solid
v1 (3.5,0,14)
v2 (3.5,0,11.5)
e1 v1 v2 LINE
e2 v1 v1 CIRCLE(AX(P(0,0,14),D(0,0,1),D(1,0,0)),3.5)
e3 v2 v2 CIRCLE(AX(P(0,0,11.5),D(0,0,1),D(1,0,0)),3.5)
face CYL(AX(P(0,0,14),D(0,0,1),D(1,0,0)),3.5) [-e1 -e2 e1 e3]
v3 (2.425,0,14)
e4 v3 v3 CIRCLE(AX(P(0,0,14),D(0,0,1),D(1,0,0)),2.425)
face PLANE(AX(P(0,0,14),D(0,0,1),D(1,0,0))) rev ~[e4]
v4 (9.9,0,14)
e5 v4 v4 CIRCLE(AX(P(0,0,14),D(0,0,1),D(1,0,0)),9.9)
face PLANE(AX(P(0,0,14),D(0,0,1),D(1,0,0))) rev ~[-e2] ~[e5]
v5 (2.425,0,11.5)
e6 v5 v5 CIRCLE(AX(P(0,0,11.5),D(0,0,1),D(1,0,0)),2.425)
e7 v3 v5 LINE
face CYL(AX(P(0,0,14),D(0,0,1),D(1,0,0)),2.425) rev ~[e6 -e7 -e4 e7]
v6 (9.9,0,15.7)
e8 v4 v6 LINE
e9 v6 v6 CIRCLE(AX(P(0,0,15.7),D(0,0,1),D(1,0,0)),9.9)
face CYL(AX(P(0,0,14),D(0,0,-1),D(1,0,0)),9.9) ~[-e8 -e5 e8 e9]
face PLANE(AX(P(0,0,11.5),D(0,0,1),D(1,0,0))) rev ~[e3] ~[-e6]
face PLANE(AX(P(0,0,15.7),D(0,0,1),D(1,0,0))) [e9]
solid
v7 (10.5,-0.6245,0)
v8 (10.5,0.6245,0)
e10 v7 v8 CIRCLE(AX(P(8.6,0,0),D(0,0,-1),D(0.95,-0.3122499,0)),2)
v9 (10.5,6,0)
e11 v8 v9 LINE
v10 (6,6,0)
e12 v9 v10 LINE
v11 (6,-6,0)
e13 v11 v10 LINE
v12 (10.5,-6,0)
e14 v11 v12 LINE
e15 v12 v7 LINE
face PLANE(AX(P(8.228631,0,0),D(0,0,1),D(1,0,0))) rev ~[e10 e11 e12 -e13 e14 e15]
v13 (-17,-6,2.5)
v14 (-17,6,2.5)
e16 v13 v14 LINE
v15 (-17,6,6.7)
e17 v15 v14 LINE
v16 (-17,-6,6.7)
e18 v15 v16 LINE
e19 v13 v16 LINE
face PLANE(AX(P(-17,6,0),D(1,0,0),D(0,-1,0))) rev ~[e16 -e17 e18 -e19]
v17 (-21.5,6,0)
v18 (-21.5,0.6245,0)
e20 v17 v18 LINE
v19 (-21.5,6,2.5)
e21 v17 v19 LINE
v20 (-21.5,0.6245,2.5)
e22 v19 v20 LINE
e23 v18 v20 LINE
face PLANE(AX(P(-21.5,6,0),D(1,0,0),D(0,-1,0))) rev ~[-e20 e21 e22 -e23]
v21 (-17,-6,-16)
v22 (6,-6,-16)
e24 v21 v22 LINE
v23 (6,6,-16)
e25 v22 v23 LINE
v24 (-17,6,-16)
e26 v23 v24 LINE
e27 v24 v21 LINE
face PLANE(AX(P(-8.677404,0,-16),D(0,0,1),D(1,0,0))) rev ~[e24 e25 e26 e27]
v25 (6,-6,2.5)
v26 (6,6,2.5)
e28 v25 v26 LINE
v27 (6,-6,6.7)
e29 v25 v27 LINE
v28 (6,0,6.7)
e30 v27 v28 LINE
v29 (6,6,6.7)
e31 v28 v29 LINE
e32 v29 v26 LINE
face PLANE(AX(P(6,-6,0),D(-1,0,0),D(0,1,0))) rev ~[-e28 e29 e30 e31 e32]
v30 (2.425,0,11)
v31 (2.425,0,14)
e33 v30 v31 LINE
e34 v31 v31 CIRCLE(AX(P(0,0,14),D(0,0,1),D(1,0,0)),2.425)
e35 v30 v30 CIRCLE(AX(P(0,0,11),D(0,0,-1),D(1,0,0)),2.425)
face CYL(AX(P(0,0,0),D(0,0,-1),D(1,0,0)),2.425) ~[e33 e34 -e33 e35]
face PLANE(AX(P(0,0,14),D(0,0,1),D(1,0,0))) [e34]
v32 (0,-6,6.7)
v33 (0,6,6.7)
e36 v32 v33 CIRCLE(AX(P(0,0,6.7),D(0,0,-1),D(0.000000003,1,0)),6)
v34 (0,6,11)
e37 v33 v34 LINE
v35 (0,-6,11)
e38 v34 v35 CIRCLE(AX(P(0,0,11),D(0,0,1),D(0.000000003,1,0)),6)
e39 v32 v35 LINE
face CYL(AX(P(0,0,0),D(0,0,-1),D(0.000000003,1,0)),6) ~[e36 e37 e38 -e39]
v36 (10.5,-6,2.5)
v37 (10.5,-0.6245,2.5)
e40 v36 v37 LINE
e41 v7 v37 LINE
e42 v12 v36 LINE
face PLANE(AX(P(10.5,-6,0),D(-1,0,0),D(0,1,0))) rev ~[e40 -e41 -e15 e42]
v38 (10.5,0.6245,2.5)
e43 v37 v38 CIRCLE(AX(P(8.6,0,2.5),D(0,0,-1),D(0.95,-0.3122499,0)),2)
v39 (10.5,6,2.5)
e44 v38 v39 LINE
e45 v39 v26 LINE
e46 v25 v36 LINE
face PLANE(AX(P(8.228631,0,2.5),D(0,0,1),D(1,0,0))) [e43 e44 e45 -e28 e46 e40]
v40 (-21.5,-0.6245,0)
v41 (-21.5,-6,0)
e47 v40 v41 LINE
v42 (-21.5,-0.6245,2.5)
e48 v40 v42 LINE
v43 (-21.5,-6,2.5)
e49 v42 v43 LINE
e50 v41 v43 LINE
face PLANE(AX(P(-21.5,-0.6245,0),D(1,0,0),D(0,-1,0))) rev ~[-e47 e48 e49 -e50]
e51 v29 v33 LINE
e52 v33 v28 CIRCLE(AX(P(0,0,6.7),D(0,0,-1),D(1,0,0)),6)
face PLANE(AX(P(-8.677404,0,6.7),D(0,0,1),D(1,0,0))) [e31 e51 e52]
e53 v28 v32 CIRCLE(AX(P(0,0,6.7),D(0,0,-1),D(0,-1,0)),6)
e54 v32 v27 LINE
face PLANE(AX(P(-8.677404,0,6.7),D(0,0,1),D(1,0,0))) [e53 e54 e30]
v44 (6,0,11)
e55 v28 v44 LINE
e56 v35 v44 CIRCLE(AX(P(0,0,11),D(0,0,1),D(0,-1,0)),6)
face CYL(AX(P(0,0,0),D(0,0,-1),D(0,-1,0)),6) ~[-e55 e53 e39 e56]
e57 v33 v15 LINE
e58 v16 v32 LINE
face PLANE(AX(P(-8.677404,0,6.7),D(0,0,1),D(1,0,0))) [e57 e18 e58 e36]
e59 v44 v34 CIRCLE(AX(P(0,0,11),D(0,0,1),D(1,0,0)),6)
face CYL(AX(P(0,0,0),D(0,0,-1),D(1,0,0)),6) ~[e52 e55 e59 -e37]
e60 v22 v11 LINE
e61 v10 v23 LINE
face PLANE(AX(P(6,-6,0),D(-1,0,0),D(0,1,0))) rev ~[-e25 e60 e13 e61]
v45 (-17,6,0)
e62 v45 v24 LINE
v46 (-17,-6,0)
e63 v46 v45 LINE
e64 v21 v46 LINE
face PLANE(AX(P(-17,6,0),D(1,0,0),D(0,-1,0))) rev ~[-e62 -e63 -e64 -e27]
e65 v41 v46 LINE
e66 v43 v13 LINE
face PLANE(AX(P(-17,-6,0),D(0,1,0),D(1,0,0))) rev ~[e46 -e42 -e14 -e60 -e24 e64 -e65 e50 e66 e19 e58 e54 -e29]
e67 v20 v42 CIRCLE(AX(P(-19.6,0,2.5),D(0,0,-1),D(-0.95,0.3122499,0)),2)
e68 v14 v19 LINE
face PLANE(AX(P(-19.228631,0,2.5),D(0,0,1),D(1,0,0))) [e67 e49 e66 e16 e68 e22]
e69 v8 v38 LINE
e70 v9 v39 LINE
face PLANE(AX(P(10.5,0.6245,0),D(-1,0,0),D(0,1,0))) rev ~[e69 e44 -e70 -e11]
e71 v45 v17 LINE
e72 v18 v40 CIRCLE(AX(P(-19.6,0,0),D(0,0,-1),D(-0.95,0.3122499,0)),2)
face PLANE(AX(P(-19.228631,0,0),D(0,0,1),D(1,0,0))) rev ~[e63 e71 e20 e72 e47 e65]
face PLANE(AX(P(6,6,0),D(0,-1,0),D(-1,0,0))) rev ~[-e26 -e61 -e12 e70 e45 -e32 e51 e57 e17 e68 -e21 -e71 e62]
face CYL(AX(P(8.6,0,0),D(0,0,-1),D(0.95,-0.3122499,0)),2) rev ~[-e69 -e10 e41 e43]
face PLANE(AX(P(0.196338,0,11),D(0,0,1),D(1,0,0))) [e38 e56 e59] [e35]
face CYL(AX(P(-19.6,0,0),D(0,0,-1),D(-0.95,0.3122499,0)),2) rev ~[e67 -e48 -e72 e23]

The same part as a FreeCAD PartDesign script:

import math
import FreeCAD as App
import Part
import Sketcher

V = App.Vector

doc = App.newDocument("Part")
body = doc.addObject("PartDesign::Body", "Body")

sketch1 = doc.addObject("Sketcher::SketchObject", "Sketch")
body.addObject(sketch1)
sketch1.AttachmentSupport = (doc.XY_Plane, [""])
sketch1.MapMode = "FlatFace"
sketch1.addGeometry(Part.LineSegment(V(-17, 6, 0), V(-17, -6, 0)), False)
sketch1.addGeometry(Part.LineSegment(V(-17, -6, 0), V(6, -6, 0)), False)
sketch1.addGeometry(Part.LineSegment(V(6, -6, 0), V(6, 6, 0)), False)
sketch1.addGeometry(Part.LineSegment(V(6, 6, 0), V(-17, 6, 0)), False)
sketch1.addConstraint(Sketcher.Constraint("Coincident", 0, 2, 1, 1))
sketch1.addConstraint(Sketcher.Constraint("Coincident", 1, 2, 2, 1))
sketch1.addConstraint(Sketcher.Constraint("Coincident", 2, 2, 3, 1))
sketch1.addConstraint(Sketcher.Constraint("Coincident", 3, 2, 0, 1))
sketch1.addConstraint(Sketcher.Constraint("Vertical", 0))
sketch1.addConstraint(Sketcher.Constraint("Horizontal", 1))
sketch1.addConstraint(Sketcher.Constraint("Vertical", 2))
sketch1.addConstraint(Sketcher.Constraint("Horizontal", 3))
sketch1.addConstraint(Sketcher.Constraint("DistanceX", 1, 1, 1, 2, 23.0))
sketch1.addConstraint(Sketcher.Constraint("DistanceY", 0, 2, 0, 1, 12.0))
sketch1.addConstraint(Sketcher.Constraint("DistanceX", 0, 2, -1, 1, 17.0))
sketch1.addConstraint(Sketcher.Constraint("DistanceY", 0, 2, -1, 1, 6.0))
pad1 = doc.addObject("PartDesign::Pad", "Pad")
body.addObject(pad1)
pad1.Profile = sketch1
pad1.Type = "TwoLengths"
pad1.Length = 16
pad1.Length2 = 6.7
pad1.Reversed = True

sketch2 = doc.addObject("Sketcher::SketchObject", "Sketch001")
body.addObject(sketch2)
sketch2.AttachmentSupport = (doc.XY_Plane, [""])
sketch2.MapMode = "FlatFace"
sketch2.addGeometry(Part.LineSegment(V(-17, -6, 0), V(-17, 6, 0)), False)
sketch2.addGeometry(Part.LineSegment(V(-17, 6, 0), V(-21.5, 6, 0)), False)
sketch2.addGeometry(Part.LineSegment(V(-21.5, 6, 0), V(-21.5, 0.6245, 0)), False)
sketch2.addGeometry(Part.ArcOfCircle(Part.Circle(V(-19.6, 0, 0), V(0, 0, 1), 2), math.radians(-161.805128), math.radians(161.805128)), False)
sketch2.addGeometry(Part.LineSegment(V(-21.5, -0.6245, 0), V(-21.5, -6, 0)), False)
sketch2.addGeometry(Part.LineSegment(V(-21.5, -6, 0), V(-17, -6, 0)), False)
sketch2.addGeometry(Part.LineSegment(V(10.5, 6, 0), V(6, 6, 0)), False)
sketch2.addGeometry(Part.LineSegment(V(6, 6, 0), V(6, -6, 0)), False)
sketch2.addGeometry(Part.LineSegment(V(6, -6, 0), V(10.5, -6, 0)), False)
sketch2.addGeometry(Part.LineSegment(V(10.5, -6, 0), V(10.5, -0.6245, 0)), False)
sketch2.addGeometry(Part.ArcOfCircle(Part.Circle(V(8.6, 0, 0), V(0, 0, 1), 2), math.radians(18.194872), math.radians(341.805128)), False)
sketch2.addGeometry(Part.LineSegment(V(10.5, 0.6245, 0), V(10.5, 6, 0)), False)
sketch2.addConstraint(Sketcher.Constraint("Coincident", 0, 2, 1, 1))
sketch2.addConstraint(Sketcher.Constraint("Coincident", 1, 2, 2, 1))
sketch2.addConstraint(Sketcher.Constraint("Coincident", 2, 2, 3, 2))
sketch2.addConstraint(Sketcher.Constraint("Coincident", 3, 1, 4, 1))
sketch2.addConstraint(Sketcher.Constraint("Coincident", 4, 2, 5, 1))
sketch2.addConstraint(Sketcher.Constraint("Coincident", 5, 2, 0, 1))
sketch2.addConstraint(Sketcher.Constraint("Coincident", 6, 2, 7, 1))
sketch2.addConstraint(Sketcher.Constraint("Coincident", 7, 2, 8, 1))
sketch2.addConstraint(Sketcher.Constraint("Coincident", 8, 2, 9, 1))
sketch2.addConstraint(Sketcher.Constraint("Coincident", 9, 2, 10, 2))
sketch2.addConstraint(Sketcher.Constraint("Coincident", 10, 1, 11, 1))
sketch2.addConstraint(Sketcher.Constraint("Coincident", 11, 2, 6, 1))
sketch2.addConstraint(Sketcher.Constraint("Vertical", 0))
sketch2.addConstraint(Sketcher.Constraint("Horizontal", 1))
sketch2.addConstraint(Sketcher.Constraint("Vertical", 2))
sketch2.addConstraint(Sketcher.Constraint("Vertical", 4))
sketch2.addConstraint(Sketcher.Constraint("Horizontal", 5))
sketch2.addConstraint(Sketcher.Constraint("Horizontal", 6))
sketch2.addConstraint(Sketcher.Constraint("Vertical", 7))
sketch2.addConstraint(Sketcher.Constraint("Horizontal", 8))
sketch2.addConstraint(Sketcher.Constraint("Vertical", 9))
sketch2.addConstraint(Sketcher.Constraint("Vertical", 11))
sketch2.addConstraint(Sketcher.Constraint("Equal", 3, 10))
sketch2.addConstraint(Sketcher.Constraint("Symmetric", 2, 2, 3, 1, -1))
sketch2.addConstraint(Sketcher.Constraint("Symmetric", 9, 2, 10, 1, -1))
sketch2.addConstraint(Sketcher.Constraint("Horizontal", 1, 2, 6, 2))
sketch2.addConstraint(Sketcher.Constraint("Horizontal", 5, 2, 7, 2))
sketch2.addConstraint(Sketcher.Constraint("Horizontal", 3, 1, 9, 2))
sketch2.addConstraint(Sketcher.Constraint("Equal", 5, 6))
sketch2.addConstraint(Sketcher.Constraint("Equal", 2, 4))
sketch2.addConstraint(Sketcher.Constraint("Radius", 3, 2.0))
sketch2.addConstraint(Sketcher.Constraint("DistanceY", 0, 1, 0, 2, 12.0))
sketch2.addConstraint(Sketcher.Constraint("DistanceX", 1, 2, 1, 1, 4.5))
sketch2.addConstraint(Sketcher.Constraint("DistanceX", 0, 2, -1, 1, 17.0))
sketch2.addConstraint(Sketcher.Constraint("DistanceX", -1, 1, 6, 2, 6.0))
sketch2.addConstraint(Sketcher.Constraint("DistanceX", 3, 3, -1, 1, 19.6))
pad2 = doc.addObject("PartDesign::Pad", "Pad001")
body.addObject(pad2)
pad2.Profile = sketch2
pad2.Length = 2.5

sketch3 = doc.addObject("Sketcher::SketchObject", "Sketch002")
body.addObject(sketch3)
sketch3.AttachmentSupport = (doc.XY_Plane, [""])
sketch3.MapMode = "FlatFace"
sketch3.addGeometry(Part.ArcOfCircle(Part.Circle(V(0, 0, 0), V(0, 0, 1), 6), math.radians(0), math.radians(90)), False)
sketch3.addGeometry(Part.ArcOfCircle(Part.Circle(V(0, 0, 0), V(0, 0, 1), 6), math.radians(90), math.radians(270)), False)
sketch3.addGeometry(Part.ArcOfCircle(Part.Circle(V(0, 0, 0), V(0, 0, 1), 6), math.radians(-90), math.radians(0)), False)
sketch3.addConstraint(Sketcher.Constraint("Tangent", 0, 2, 1, 1))
sketch3.addConstraint(Sketcher.Constraint("Tangent", 1, 2, 2, 1))
sketch3.addConstraint(Sketcher.Constraint("Tangent", 2, 2, 0, 1))
sketch3.addConstraint(Sketcher.Constraint("Coincident", 0, 3, -1, 1))
sketch3.addConstraint(Sketcher.Constraint("PointOnObject", 0, 2, -2))
sketch3.addConstraint(Sketcher.Constraint("PointOnObject", 1, 2, -2))
sketch3.addConstraint(Sketcher.Constraint("PointOnObject", 2, 2, -1))
sketch3.addConstraint(Sketcher.Constraint("Radius", 0, 6.0))
pad3 = doc.addObject("PartDesign::Pad", "Pad002")
body.addObject(pad3)
pad3.Profile = sketch3
pad3.Length = 11

sketch4 = doc.addObject("Sketcher::SketchObject", "Sketch003")
body.addObject(sketch4)
sketch4.AttachmentSupport = (doc.XY_Plane, [""])
sketch4.MapMode = "FlatFace"
sketch4.addGeometry(Part.Circle(V(0, 0, 0), V(0, 0, 1), 2.425), False)
sketch4.addConstraint(Sketcher.Constraint("Coincident", 0, 3, -1, 1))
sketch4.addConstraint(Sketcher.Constraint("Diameter", 0, 4.85))
pad4 = doc.addObject("PartDesign::Pad", "Pad003")
body.addObject(pad4)
pad4.Profile = sketch4
pad4.Length = 14
body2 = doc.addObject("PartDesign::Body", "Body001")

sketch5 = doc.addObject("Sketcher::SketchObject", "Sketch004")
body2.addObject(sketch5)
sketch5.AttachmentSupport = (doc.getObject("XY_Plane001"), [""])
sketch5.MapMode = "FlatFace"
sketch5.AttachmentOffset = App.Placement(V(0, 0, 14), App.Rotation())
sketch5.addGeometry(Part.Circle(V(0, 0, 0), V(0, 0, 1), 3.5), False)
sketch5.addGeometry(Part.Circle(V(0, 0, 0), V(0, 0, 1), 2.425), False)
sketch5.addConstraint(Sketcher.Constraint("Coincident", 0, 3, -1, 1))
sketch5.addConstraint(Sketcher.Constraint("Coincident", 1, 3, -1, 1))
sketch5.addConstraint(Sketcher.Constraint("Diameter", 0, 7.0))
sketch5.addConstraint(Sketcher.Constraint("Diameter", 1, 4.85))
pad5 = doc.addObject("PartDesign::Pad", "Pad004")
body2.addObject(pad5)
pad5.Profile = sketch5
pad5.Length = 2.5
pad5.Reversed = True

sketch6 = doc.addObject("Sketcher::SketchObject", "Sketch005")
body2.addObject(sketch6)
sketch6.AttachmentSupport = (doc.getObject("XY_Plane001"), [""])
sketch6.MapMode = "FlatFace"
sketch6.AttachmentOffset = App.Placement(V(0, 0, 14), App.Rotation())
sketch6.addGeometry(Part.Circle(V(0, 0, 0), V(0, 0, 1), 9.9), False)
sketch6.addConstraint(Sketcher.Constraint("Coincident", 0, 3, -1, 1))
sketch6.addConstraint(Sketcher.Constraint("Diameter", 0, 19.8))
pad6 = doc.addObject("PartDesign::Pad", "Pad005")
body2.addObject(pad6)
pad6.Profile = sketch6
pad6.Length = 1.7

doc.recompute()
